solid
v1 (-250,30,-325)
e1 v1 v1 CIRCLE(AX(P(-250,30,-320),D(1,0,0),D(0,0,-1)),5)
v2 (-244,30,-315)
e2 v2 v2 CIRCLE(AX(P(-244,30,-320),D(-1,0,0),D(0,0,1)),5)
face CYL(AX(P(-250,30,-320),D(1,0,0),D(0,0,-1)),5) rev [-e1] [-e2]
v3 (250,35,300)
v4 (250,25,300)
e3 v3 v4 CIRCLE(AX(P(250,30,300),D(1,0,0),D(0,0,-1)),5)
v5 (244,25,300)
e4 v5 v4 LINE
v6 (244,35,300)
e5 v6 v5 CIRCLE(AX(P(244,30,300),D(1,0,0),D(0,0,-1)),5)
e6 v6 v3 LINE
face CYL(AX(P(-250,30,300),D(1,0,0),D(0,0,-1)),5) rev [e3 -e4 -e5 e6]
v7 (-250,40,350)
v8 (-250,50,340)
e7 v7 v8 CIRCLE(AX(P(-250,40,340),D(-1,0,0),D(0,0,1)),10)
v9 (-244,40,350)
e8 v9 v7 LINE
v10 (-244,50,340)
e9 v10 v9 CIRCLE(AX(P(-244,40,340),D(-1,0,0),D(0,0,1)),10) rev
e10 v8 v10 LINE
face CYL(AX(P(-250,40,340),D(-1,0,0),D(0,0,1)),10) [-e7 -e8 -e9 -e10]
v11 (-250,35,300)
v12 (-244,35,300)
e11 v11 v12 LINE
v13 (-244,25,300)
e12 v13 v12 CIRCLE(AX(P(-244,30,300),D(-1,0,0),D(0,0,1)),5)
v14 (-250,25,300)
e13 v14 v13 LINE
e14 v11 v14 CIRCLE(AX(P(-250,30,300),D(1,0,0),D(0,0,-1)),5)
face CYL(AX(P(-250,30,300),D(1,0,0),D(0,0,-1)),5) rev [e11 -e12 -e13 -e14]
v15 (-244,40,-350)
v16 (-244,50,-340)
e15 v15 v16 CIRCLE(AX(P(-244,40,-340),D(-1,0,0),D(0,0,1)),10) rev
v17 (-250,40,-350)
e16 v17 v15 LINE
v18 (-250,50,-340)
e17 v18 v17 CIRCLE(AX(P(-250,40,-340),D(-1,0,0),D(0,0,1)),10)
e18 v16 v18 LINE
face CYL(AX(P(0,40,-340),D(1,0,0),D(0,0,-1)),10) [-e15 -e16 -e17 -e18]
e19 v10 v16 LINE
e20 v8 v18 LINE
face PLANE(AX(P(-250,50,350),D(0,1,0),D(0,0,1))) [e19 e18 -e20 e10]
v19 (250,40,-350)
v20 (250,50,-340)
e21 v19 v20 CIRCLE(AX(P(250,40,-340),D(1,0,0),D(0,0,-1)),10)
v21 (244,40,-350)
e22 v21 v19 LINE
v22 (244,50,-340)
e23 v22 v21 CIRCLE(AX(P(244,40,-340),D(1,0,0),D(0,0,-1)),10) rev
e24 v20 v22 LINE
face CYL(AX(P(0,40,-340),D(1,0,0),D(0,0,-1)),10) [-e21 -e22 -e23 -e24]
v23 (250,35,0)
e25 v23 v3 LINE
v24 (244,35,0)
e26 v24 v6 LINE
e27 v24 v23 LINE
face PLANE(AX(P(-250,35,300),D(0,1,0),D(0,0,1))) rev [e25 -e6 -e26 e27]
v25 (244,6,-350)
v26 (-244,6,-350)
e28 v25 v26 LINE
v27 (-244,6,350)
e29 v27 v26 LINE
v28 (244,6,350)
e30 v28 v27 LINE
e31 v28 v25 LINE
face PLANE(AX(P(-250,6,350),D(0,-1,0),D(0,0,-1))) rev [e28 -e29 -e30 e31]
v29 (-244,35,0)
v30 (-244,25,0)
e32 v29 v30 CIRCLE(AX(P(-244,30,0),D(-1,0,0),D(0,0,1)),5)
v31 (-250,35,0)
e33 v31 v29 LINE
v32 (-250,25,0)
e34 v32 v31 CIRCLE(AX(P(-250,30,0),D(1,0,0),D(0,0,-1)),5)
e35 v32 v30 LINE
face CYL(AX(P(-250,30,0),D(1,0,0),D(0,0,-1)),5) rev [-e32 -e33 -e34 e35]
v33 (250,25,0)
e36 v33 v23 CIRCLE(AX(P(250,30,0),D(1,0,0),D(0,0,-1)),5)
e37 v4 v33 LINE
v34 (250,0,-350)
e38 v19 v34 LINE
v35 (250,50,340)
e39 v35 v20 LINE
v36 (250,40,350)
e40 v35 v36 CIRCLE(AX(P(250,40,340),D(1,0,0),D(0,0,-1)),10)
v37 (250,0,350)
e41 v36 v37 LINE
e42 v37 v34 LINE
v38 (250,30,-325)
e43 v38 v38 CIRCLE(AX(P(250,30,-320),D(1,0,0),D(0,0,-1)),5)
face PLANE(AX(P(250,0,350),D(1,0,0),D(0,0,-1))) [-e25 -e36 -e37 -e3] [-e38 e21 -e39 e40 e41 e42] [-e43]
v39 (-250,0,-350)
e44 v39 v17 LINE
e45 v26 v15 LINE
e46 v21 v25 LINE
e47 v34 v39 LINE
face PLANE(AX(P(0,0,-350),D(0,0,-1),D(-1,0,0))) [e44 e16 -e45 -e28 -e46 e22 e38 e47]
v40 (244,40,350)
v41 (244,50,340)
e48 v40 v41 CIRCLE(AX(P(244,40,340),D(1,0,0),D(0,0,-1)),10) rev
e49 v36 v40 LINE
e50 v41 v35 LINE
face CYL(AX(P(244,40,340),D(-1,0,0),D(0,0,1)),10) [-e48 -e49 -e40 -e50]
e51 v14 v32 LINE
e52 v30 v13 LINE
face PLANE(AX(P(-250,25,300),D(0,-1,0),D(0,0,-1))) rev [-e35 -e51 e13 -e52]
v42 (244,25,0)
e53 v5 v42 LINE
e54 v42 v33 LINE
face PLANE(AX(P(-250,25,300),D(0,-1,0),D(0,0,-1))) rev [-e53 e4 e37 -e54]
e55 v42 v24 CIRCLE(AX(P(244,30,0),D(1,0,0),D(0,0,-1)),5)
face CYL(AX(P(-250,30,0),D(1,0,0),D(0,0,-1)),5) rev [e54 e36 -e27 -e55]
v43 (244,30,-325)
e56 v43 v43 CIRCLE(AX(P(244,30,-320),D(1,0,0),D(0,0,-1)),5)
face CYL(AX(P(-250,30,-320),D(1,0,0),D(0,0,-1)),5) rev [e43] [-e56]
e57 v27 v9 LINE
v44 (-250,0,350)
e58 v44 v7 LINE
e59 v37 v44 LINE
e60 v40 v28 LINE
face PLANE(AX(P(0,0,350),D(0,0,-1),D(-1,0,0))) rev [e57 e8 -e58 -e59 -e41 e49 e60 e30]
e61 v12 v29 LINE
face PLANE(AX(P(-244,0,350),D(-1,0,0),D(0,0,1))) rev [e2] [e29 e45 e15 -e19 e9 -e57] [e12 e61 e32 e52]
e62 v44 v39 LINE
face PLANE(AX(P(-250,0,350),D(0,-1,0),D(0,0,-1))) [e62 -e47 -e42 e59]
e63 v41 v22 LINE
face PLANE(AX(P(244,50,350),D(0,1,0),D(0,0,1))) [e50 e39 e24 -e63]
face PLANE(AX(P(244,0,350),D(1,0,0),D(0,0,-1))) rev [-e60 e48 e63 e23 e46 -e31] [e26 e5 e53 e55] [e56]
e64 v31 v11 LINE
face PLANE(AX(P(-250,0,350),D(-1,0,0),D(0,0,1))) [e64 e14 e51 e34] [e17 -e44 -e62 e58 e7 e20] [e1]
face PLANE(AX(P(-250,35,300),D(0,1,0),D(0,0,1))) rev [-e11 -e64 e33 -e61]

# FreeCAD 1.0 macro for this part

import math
import FreeCAD as App
import Part
import Sketcher

V = App.Vector
Q = App.Units.Quantity


def edges_at(feature, points):
    """Names of the edges that pass closest to the given points."""
    edges = feature.Shape.Edges
    near = lambda p: min(range(len(edges)), key=lambda i: edges[i].distToShape(Part.Vertex(*p))[0])
    return sorted({f"Edge{near(p) + 1}" for p in points})


def add_polygon(sketch, points):
    """Adds a closed chain of lines whose ends are joined by coincident constraints."""
    first, n = sketch.GeometryCount, len(points)
    for a, b in zip(points, points[1:] + points[:1]):
        sketch.addGeometry(Part.LineSegment(App.Vector(*a, 0), App.Vector(*b, 0)), False)
    for i in range(n):
        sketch.addConstraint(Sketcher.Constraint("Coincident", first + i, 2, first + (i + 1) % n, 1))

doc = App.newDocument("Part")
params = doc.addObject("Spreadsheet::Sheet", "Params")
for row, (alias, value) in enumerate([
    ("sketch1_width", "500 mm"),
    ("sketch1_width2", "6 mm"),
    ("sketch1_height", "50 mm"),
    ("sketch1_height2", "44 mm"),
    ("pad1_length", "700 mm"),
    ("sketch2_diameter", "10 mm"),
    ("sketch2_height", "300 mm"),
    ("fillet_radius", "10 mm"),
], start=1):
    params.set(f"A{row}", alias)
    params.set(f"B{row}", "=" + value)
    params.setAlias(f"B{row}", alias)

body = doc.addObject("PartDesign::Body", "Body")

# Sketch on XY plane
sketch1 = body.newObject("Sketcher::SketchObject", "Sketch")
sketch1.AttachmentSupport = (doc.getObject("XY_Plane"), [""])
sketch1.MapMode = "FlatFace"
add_polygon(sketch1, [(-250, 50), (-250, 0), (250, 0), (250, 50), (244, 50), (244, 6), (-244, 6), (-244, 50)])  # lines 0-7
sketch1.addConstraint(Sketcher.Constraint("Vertical", 0))
sketch1.addConstraint(Sketcher.Constraint("Horizontal", 1))
sketch1.addConstraint(Sketcher.Constraint("Vertical", 2))
sketch1.addConstraint(Sketcher.Constraint("Horizontal", 3))
sketch1.addConstraint(Sketcher.Constraint("Vertical", 4))
sketch1.addConstraint(Sketcher.Constraint("Horizontal", 5))
sketch1.addConstraint(Sketcher.Constraint("Vertical", 6))
sketch1.addConstraint(Sketcher.Constraint("Horizontal", 7))
sketch1.addConstraint(Sketcher.Constraint("Symmetric", 0, 2, 1, 2, -1, 1))
sketch1.addConstraint(Sketcher.Constraint("Symmetric", 3, 2, 6, 2, -2))
sketch1.addConstraint(Sketcher.Constraint("DistanceX", 1, 1, 1, 2, Q("500 mm")))
sketch1.addConstraint(Sketcher.Constraint("DistanceX", 3, 2, 3, 1, Q("6 mm")))
sketch1.addConstraint(Sketcher.Constraint("DistanceY", 0, 2, 0, 1, Q("50 mm")))
sketch1.addConstraint(Sketcher.Constraint("DistanceY", 4, 2, 4, 1, Q("44 mm")))
sketch1.setExpression("Constraints[18]", "Params.sketch1_width")
sketch1.setExpression("Constraints[19]", "Params.sketch1_width2")
sketch1.setExpression("Constraints[20]", "Params.sketch1_height")
sketch1.setExpression("Constraints[21]", "Params.sketch1_height2")
pad1 = body.newObject("PartDesign::Pad", "Pad")
pad1.Profile = sketch1
pad1.setExpression("Length", "Params.pad1_length")
pad1.Midplane = True

# Sketch on YZ plane
sketch2 = body.newObject("Sketcher::SketchObject", "Sketch001")
sketch2.AttachmentSupport = (doc.getObject("YZ_Plane"), [""])
sketch2.MapMode = "FlatFace"
sketch2.AttachmentOffset = App.Placement(V(0, 0, 250), App.Rotation())
sketch2.addGeometry(Part.Circle(V(30, -320, 0), V(0, 0, 1), 5), False)
sketch2.addGeometry(Part.LineSegment(V(35, 0, 0), V(35, 300, 0)), False)
sketch2.addGeometry(Part.ArcOfCircle(Part.Circle(V(30, 300, 0), V(0, 0, 1), 5), math.radians(0), math.radians(180)), False)
sketch2.addGeometry(Part.LineSegment(V(25, 300, 0), V(25, 0, 0)), False)
sketch2.addGeometry(Part.ArcOfCircle(Part.Circle(V(30, 0, 0), V(0, 0, 1), 5), math.radians(180), math.radians(360)), False)
sketch2.addConstraint(Sketcher.Constraint("Tangent", 1, 2, 2, 1))
sketch2.addConstraint(Sketcher.Constraint("Tangent", 2, 2, 3, 1))
sketch2.addConstraint(Sketcher.Constraint("Tangent", 3, 2, 4, 1))
sketch2.addConstraint(Sketcher.Constraint("Tangent", 4, 2, 1, 1))
sketch2.addConstraint(Sketcher.Constraint("Vertical", 1))
sketch2.addConstraint(Sketcher.Constraint("Vertical", 3))
sketch2.addConstraint(Sketcher.Constraint("Equal", 0, 2))
sketch2.addConstraint(Sketcher.Constraint("PointOnObject", 4, 3, -1))
sketch2.addConstraint(Sketcher.Constraint("Vertical", 0, 3, 2, 3))
sketch2.addConstraint(Sketcher.Constraint("Diameter", 0, Q("10 mm")))
sketch2.addConstraint(Sketcher.Constraint("DistanceY", 1, 1, 1, 2, Q("300 mm")))
sketch2.addConstraint(Sketcher.Constraint("DistanceX", -1, 1, 0, 3, Q("30 mm")))
sketch2.addConstraint(Sketcher.Constraint("DistanceY", 0, 3, -1, 1, Q("320 mm")))
sketch2.setExpression("Constraints[9]", "Params.sketch2_diameter")
sketch2.setExpression("Constraints[10]", "Params.sketch2_height")
pocket1 = body.newObject("PartDesign::Pocket", "Pocket")
pocket1.Profile = sketch2
pocket1.Type = "ThroughAll"
pocket1.Midplane = True
doc.recompute()

fillet = body.newObject("PartDesign::Fillet", "Fillet")
fillet.Base = (pocket1, edges_at(pocket1, [
    (247, 50, 350),
    (247, 50, -350),
    (-247, 50, 350),
    (-247, 50, -350),
]))
fillet.setExpression("Radius", "Params.fillet_radius")

doc.recompute()
